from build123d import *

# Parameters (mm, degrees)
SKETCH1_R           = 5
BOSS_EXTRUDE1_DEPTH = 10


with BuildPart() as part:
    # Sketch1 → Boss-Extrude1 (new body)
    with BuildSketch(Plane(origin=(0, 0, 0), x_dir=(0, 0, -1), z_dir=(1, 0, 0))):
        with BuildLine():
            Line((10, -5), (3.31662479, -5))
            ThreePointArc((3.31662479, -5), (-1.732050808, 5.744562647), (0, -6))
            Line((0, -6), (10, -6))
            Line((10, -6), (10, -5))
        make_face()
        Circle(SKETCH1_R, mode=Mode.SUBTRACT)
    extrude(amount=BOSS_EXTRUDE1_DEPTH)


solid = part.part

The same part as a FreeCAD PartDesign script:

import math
import FreeCAD as App
import Part
import Sketcher

V = App.Vector

doc = App.newDocument("Part")
body = doc.addObject("PartDesign::Body", "Body")

# Sketch on YZ plane
sketch1 = body.newObject("Sketcher::SketchObject", "Sketch")
sketch1.AttachmentSupport = (doc.getObject("YZ_Plane"), [""])
sketch1.MapMode = "FlatFace"
sketch1.addGeometry(Part.LineSegment(V(-5, -10, 0), V(-5, -3.3, 0)), False)
sketch1.addGeometry(Part.ArcOfCircle(Part.Circle(V(0, 0, 0), V(0, 0, 1), 6), math.radians(-146), math.radians(180)), False)
sketch1.addGeometry(Part.LineSegment(V(-6, 0, 0), V(-6, -10, 0)), False)
sketch1.addGeometry(Part.LineSegment(V(-6, -10, 0), V(-5, -10, 0)), False)
sketch1.addGeometry(Part.Circle(V(0, 0, 0), V(0, 0, 1), 5), False)
sketch1.addConstraint(Sketcher.Constraint("Coincident", 0, 2, 1, 1))
sketch1.addConstraint(Sketcher.Constraint("Tangent", 1, 2, 2, 1))
sketch1.addConstraint(Sketcher.Constraint("Coincident", 2, 2, 3, 1))
sketch1.addConstraint(Sketcher.Constraint("Coincident", 3, 2, 0, 1))
sketch1.addConstraint(Sketcher.Constraint("Vertical", 0))
sketch1.addConstraint(Sketcher.Constraint("Vertical", 2))
sketch1.addConstraint(Sketcher.Constraint("Horizontal", 3))
sketch1.addConstraint(Sketcher.Constraint("Coincident", 1, 3, -1, 1))
sketch1.addConstraint(Sketcher.Constraint("Coincident", 4, 3, -1, 1))
sketch1.addConstraint(Sketcher.Constraint("Diameter", 4, 10.0))
sketch1.addConstraint(Sketcher.Constraint("Radius", 1, 6.0))
sketch1.addConstraint(Sketcher.Constraint("DistanceX", 3, 1, 3, 2, 1.0))
sketch1.addConstraint(Sketcher.Constraint("DistanceY", 2, 2, 2, 1, 10.0))
pad1 = body.newObject("PartDesign::Pad", "Pad")
pad1.Profile = sketch1
pad1.Length = 10

doc.recompute()
